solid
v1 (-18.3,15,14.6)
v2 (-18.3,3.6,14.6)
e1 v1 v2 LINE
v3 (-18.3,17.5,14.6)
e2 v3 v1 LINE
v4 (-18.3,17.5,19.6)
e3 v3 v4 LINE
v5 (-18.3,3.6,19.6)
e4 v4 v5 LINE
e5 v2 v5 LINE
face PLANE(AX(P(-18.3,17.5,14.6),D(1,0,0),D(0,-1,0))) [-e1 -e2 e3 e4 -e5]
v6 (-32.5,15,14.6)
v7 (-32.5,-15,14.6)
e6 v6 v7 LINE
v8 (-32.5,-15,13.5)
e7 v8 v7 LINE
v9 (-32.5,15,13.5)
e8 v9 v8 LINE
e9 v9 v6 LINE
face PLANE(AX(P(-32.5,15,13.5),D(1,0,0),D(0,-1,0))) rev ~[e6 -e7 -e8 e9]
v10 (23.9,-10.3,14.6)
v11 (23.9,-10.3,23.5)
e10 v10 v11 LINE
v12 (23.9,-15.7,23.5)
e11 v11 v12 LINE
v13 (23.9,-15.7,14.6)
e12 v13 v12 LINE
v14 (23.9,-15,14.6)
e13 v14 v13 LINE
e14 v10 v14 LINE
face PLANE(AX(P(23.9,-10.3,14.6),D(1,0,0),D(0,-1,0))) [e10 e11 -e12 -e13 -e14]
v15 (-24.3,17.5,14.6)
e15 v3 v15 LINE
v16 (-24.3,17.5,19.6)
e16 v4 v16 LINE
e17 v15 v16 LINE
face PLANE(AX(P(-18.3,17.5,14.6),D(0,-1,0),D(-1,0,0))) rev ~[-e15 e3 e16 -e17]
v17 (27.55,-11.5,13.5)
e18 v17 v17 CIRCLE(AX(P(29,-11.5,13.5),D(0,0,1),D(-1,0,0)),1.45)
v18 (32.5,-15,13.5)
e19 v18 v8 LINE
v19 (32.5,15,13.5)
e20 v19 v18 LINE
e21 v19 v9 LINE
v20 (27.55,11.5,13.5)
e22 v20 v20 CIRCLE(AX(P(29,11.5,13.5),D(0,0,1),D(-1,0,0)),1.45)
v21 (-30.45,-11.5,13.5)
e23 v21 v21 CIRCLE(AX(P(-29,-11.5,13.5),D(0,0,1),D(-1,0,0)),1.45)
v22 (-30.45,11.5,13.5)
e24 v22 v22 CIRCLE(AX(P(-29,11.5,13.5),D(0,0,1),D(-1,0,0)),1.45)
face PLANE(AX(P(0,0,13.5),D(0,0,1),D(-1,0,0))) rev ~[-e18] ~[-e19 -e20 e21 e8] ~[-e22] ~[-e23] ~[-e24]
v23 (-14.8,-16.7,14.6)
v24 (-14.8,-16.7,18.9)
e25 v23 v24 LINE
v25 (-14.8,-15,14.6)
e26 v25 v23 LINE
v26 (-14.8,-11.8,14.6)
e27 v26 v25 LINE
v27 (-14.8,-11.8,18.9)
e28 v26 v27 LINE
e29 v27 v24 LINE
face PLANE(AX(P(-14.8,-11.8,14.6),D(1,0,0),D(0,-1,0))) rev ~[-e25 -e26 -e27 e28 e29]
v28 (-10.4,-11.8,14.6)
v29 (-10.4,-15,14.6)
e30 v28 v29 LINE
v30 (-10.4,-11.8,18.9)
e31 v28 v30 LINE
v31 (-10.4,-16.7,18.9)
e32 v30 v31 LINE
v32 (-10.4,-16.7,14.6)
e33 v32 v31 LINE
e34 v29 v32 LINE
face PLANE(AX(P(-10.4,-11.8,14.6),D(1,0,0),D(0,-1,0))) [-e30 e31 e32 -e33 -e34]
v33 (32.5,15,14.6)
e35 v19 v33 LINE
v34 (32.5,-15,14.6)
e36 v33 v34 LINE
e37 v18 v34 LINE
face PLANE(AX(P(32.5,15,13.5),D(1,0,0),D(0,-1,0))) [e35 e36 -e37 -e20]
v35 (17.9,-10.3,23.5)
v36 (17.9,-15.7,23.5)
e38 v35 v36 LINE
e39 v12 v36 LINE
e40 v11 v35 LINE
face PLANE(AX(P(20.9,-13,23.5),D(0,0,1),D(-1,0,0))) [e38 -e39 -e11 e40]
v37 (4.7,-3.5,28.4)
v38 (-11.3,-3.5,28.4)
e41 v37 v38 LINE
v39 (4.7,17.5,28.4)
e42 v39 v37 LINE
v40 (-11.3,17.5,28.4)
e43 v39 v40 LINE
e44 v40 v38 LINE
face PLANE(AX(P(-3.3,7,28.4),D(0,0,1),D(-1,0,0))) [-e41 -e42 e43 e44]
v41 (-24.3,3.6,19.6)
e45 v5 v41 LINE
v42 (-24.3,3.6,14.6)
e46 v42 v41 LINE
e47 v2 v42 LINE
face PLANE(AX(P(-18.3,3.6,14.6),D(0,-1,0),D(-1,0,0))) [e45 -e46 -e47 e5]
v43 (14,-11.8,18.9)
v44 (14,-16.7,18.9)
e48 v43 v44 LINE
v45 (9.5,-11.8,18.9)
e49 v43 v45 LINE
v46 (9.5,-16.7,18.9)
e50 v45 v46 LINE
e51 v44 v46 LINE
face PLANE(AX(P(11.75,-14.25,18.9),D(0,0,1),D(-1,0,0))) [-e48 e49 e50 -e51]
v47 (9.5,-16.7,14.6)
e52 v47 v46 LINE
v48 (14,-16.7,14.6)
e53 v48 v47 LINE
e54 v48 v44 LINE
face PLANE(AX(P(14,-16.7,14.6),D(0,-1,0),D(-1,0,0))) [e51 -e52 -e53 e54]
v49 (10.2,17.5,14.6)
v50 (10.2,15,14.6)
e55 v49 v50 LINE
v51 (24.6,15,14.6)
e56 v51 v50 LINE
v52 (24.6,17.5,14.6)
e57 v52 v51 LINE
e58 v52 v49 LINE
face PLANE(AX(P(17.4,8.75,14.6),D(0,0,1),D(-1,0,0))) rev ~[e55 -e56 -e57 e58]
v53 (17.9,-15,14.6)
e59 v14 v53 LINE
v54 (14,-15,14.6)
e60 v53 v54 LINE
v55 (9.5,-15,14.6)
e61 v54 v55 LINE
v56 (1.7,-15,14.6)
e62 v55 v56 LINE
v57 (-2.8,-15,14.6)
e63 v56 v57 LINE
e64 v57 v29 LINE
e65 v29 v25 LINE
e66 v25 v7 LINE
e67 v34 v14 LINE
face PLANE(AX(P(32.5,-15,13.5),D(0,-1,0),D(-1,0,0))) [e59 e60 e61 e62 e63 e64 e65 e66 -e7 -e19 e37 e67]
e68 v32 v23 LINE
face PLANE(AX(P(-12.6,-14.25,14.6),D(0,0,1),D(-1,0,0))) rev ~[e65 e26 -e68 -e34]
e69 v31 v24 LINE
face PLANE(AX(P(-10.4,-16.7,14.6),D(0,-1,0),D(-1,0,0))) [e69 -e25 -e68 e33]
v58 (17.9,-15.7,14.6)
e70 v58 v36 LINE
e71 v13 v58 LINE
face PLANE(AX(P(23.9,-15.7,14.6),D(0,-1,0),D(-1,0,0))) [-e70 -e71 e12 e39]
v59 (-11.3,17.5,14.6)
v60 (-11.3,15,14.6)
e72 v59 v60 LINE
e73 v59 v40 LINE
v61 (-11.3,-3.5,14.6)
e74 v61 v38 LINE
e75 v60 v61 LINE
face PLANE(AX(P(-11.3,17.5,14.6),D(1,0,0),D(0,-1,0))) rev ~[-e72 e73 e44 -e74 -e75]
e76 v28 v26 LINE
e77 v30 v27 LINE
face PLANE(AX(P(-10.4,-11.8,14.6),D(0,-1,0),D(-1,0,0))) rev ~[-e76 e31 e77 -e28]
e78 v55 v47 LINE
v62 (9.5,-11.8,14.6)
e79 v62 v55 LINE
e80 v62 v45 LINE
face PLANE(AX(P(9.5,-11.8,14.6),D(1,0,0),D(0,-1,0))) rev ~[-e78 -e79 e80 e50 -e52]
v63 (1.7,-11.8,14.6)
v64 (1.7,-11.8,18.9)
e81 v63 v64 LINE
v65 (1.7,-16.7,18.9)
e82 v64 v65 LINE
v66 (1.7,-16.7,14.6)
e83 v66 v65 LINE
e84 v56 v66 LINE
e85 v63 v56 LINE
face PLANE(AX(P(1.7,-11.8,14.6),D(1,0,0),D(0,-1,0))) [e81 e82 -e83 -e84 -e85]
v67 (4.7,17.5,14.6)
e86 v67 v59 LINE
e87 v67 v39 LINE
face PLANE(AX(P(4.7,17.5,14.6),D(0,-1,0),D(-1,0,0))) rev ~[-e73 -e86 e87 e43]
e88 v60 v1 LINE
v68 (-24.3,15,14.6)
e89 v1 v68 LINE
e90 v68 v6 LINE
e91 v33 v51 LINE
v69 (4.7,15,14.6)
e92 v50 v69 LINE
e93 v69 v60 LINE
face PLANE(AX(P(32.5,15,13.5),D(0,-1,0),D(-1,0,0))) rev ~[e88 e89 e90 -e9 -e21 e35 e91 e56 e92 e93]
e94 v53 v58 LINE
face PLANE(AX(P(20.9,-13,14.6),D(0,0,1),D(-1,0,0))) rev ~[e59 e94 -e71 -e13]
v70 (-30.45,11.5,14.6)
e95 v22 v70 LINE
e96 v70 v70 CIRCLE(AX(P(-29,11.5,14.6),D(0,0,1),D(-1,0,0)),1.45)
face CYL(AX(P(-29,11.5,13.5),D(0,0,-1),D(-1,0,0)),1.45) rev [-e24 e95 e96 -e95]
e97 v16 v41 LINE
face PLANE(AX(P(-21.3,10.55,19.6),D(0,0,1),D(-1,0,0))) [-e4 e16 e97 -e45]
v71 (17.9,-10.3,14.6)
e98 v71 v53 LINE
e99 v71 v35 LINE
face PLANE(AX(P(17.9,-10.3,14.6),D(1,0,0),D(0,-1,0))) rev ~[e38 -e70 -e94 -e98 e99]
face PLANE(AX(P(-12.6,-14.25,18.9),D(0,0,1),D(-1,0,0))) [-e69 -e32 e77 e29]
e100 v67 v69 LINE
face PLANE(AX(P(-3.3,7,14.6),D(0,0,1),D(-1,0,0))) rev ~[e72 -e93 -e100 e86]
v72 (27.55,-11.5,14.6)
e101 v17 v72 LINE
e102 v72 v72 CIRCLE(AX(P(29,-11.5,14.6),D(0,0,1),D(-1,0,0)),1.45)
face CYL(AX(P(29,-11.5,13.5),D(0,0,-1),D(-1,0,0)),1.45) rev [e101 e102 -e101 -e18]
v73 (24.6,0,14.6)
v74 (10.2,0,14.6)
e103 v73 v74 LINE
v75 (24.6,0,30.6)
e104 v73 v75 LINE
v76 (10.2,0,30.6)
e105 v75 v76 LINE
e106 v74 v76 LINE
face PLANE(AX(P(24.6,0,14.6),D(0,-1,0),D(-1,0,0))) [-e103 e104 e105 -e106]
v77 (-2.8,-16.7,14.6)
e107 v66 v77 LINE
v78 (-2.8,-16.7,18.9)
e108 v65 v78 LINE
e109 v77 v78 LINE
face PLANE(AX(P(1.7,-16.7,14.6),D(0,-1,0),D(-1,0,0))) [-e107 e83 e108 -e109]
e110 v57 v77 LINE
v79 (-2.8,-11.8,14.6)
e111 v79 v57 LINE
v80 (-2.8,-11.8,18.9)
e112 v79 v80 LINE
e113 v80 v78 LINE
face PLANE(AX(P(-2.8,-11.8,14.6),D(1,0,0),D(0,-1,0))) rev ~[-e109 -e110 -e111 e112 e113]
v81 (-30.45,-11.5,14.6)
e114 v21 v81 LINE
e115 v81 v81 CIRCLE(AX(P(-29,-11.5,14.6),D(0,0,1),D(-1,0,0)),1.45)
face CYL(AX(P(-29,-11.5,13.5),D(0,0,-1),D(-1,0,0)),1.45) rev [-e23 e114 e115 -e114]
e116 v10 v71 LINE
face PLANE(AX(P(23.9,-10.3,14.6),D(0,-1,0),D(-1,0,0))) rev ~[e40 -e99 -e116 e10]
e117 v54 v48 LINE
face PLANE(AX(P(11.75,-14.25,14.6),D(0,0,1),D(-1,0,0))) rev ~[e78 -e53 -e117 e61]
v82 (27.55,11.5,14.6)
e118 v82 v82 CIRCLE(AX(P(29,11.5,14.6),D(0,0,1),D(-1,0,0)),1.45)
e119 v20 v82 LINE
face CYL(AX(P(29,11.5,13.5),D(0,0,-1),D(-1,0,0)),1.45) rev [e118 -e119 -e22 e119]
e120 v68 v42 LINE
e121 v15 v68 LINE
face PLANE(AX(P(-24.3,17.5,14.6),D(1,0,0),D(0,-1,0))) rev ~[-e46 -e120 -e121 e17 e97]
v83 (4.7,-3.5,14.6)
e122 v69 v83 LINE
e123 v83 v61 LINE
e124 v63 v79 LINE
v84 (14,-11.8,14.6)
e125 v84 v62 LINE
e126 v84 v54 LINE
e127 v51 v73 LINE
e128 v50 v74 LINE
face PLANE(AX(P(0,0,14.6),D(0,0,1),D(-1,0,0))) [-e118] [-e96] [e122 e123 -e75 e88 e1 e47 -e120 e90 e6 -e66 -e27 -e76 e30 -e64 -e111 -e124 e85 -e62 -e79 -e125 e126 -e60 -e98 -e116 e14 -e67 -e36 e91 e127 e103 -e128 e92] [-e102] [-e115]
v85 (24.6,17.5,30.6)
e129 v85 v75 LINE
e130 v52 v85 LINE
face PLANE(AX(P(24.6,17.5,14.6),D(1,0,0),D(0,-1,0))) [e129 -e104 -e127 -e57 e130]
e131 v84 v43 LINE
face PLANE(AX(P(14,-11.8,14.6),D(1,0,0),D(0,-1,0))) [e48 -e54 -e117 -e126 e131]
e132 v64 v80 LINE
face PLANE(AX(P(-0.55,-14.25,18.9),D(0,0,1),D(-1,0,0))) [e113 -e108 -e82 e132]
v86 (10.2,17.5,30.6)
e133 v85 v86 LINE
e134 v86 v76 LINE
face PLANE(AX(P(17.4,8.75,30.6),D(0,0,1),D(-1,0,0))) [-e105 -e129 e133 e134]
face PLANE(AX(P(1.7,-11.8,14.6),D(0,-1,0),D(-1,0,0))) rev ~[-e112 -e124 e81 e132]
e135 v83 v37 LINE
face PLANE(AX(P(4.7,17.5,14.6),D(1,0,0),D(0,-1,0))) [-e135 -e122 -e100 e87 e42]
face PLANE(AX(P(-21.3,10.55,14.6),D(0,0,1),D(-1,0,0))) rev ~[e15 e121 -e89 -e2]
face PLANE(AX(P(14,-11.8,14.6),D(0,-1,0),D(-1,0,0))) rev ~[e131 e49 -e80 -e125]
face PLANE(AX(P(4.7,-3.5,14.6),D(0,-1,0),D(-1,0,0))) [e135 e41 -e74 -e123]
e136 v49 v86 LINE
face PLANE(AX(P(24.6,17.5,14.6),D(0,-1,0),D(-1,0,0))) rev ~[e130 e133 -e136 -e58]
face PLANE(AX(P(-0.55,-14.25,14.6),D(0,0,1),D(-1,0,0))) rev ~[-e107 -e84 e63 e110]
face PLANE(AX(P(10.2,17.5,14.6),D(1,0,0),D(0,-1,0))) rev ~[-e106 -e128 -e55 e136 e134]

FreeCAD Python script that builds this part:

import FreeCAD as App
import Part
import Sketcher
from FreeCAD import Vector

doc = App.newDocument("Part")
body = doc.addObject("PartDesign::Body", "Body")

sketch1 = body.newObject("Sketcher::SketchObject", "Sketch")
sketch1.AttachmentSupport = (doc.getObject("XY_Plane"), [""])
sketch1.MapMode = "FlatFace"
sketch1.addGeometry(Part.LineSegment(Vector(-32.5, 15, 0), Vector(-32.5, -15, 0)), False)
sketch1.addGeometry(Part.LineSegment(Vector(-32.5, -15, 0), Vector(32.5, -15, 0)), False)
sketch1.addGeometry(Part.LineSegment(Vector(32.5, -15, 0), Vector(32.5, 15, 0)), False)
sketch1.addGeometry(Part.LineSegment(Vector(32.5, 15, 0), Vector(-32.5, 15, 0)), False)
sketch1.addGeometry(Part.Circle(Vector(-29, -11.5, 0), Vector(0, 0, 1), 1.4), False)
sketch1.addGeometry(Part.Circle(Vector(29, -11.5, 0), Vector(0, 0, 1), 1.4), False)
sketch1.addGeometry(Part.Circle(Vector(-29, 11.5, 0), Vector(0, 0, 1), 1.4), False)
sketch1.addGeometry(Part.Circle(Vector(29, 11.5, 0), Vector(0, 0, 1), 1.4), False)
sketch1.addConstraint(Sketcher.Constraint("Coincident", 0, 2, 1, 1))
sketch1.addConstraint(Sketcher.Constraint("Coincident", 1, 2, 2, 1))
sketch1.addConstraint(Sketcher.Constraint("Coincident", 2, 2, 3, 1))
sketch1.addConstraint(Sketcher.Constraint("Coincident", 3, 2, 0, 1))
sketch1.addConstraint(Sketcher.Constraint("Vertical", 0))
sketch1.addConstraint(Sketcher.Constraint("Horizontal", 1))
sketch1.addConstraint(Sketcher.Constraint("Vertical", 2))
sketch1.addConstraint(Sketcher.Constraint("Horizontal", 3))
sketch1.addConstraint(Sketcher.Constraint("Equal", 4, 5))
sketch1.addConstraint(Sketcher.Constraint("Equal", 5, 6))
sketch1.addConstraint(Sketcher.Constraint("Equal", 6, 7))
sketch1.addConstraint(Sketcher.Constraint("Symmetric", 5, 3, 6, 3, -1, 1))
sketch1.addConstraint(Sketcher.Constraint("Symmetric", 4, 3, 7, 3, -1, 1))
sketch1.addConstraint(Sketcher.Constraint("Symmetric", 0, 2, 2, 2, -1, 1))
sketch1.addConstraint(Sketcher.Constraint("Symmetric", 4, 3, 5, 3, -2))
sketch1.addConstraint(Sketcher.Constraint("Diameter", 4, 2.9))
sketch1.addConstraint(Sketcher.Constraint("DistanceX", 1, 1, 1, 2, 65.0))
sketch1.addConstraint(Sketcher.Constraint("DistanceY", 0, 2, 0, 1, 30.0))
sketch1.addConstraint(Sketcher.Constraint("DistanceX", 4, 3, -1, 1, 29.0))
sketch1.addConstraint(Sketcher.Constraint("DistanceY", 4, 3, 6, 3, 23.0))
pad1 = body.newObject("PartDesign::Pad", "Pad")
pad1.Profile = sketch1
pad1.Length = 1.1

sketch2 = body.newObject("Sketcher::SketchObject", "Sketch001")
sketch2.AttachmentSupport = (doc.getObject("XY_Plane"), [""])
sketch2.MapMode = "FlatFace"
sketch2.AttachmentOffset = App.Placement(Vector(0, 0, 1.1), App.Rotation())
sketch2.addGeometry(Part.LineSegment(Vector(-25, 0, 0), Vector(-25, -18, 0)), False)
sketch2.addGeometry(Part.LineSegment(Vector(-25, -18, 0), Vector(-10, -18, 0)), False)
sketch2.addGeometry(Part.LineSegment(Vector(-10, -18, 0), Vector(-10, 0, 0)), False)
sketch2.addGeometry(Part.LineSegment(Vector(-10, 0, 0), Vector(-25, 0, 0)), False)
sketch2.addConstraint(Sketcher.Constraint("Coincident", 0, 2, 1, 1))
sketch2.addConstraint(Sketcher.Constraint("Coincident", 1, 2, 2, 1))
sketch2.addConstraint(Sketcher.Constraint("Coincident", 2, 2, 3, 1))
sketch2.addConstraint(Sketcher.Constraint("Coincident", 3, 2, 0, 1))
sketch2.addConstraint(Sketcher.Constraint("Vertical", 0))
sketch2.addConstraint(Sketcher.Constraint("Horizontal", 1))
sketch2.addConstraint(Sketcher.Constraint("Vertical", 2))
sketch2.addConstraint(Sketcher.Constraint("Horizontal", 3))
sketch2.addConstraint(Sketcher.Constraint("PointOnObject", 2, 2, -1))
sketch2.addConstraint(Sketcher.Constraint("DistanceX", 1, 1, 1, 2, 14.4))
sketch2.addConstraint(Sketcher.Constraint("DistanceY", 0, 2, 0, 1, 17.5))
sketch2.addConstraint(Sketcher.Constraint("DistanceX", 0, 2, -1, 1, 24.6))
pad2 = body.newObject("PartDesign::Pad", "Pad001")
pad2.Profile = sketch2
pad2.Length = 16

sketch3 = body.newObject("Sketcher::SketchObject", "Sketch002")
sketch3.AttachmentSupport = (doc.getObject("XY_Plane"), [""])
sketch3.MapMode = "FlatFace"
sketch3.AttachmentOffset = App.Placement(Vector(0, 0, 1.1), App.Rotation())
sketch3.addGeometry(Part.LineSegment(Vector(-5, 4, 0), Vector(-5, -18, 0)), False)
sketch3.addGeometry(Part.LineSegment(Vector(-5, -18, 0), Vector(11, -18, 0)), False)
sketch3.addGeometry(Part.LineSegment(Vector(11, -18, 0), Vector(11, 4, 0)), False)
sketch3.addGeometry(Part.LineSegment(Vector(11, 4, 0), Vector(-5, 4, 0)), False)
sketch3.addConstraint(Sketcher.Constraint("Coincident", 0, 2, 1, 1))
sketch3.addConstraint(Sketcher.Constraint("Coincident", 1, 2, 2, 1))
sketch3.addConstraint(Sketcher.Constraint("Coincident", 2, 2, 3, 1))
sketch3.addConstraint(Sketcher.Constraint("Coincident", 3, 2, 0, 1))
sketch3.addConstraint(Sketcher.Constraint("Vertical", 0))
sketch3.addConstraint(Sketcher.Constraint("Horizontal", 1))
sketch3.addConstraint(Sketcher.Constraint("Vertical", 2))
sketch3.addConstraint(Sketcher.Constraint("Horizontal", 3))
sketch3.addConstraint(Sketcher.Constraint("DistanceX", 1, 1, 1, 2, 16.0))
sketch3.addConstraint(Sketcher.Constraint("DistanceY", 0, 2, 0, 1, 21.0))
sketch3.addConstraint(Sketcher.Constraint("DistanceX", 0, 2, -1, 1, 4.7))
sketch3.addConstraint(Sketcher.Constraint("DistanceY", 0, 2, -1, 1, 17.5))
pad3 = body.newObject("PartDesign::Pad", "Pad002")
pad3.Profile = sketch3
pad3.Length = 13.8

sketch4 = body.newObject("Sketcher::SketchObject", "Sketch003")
sketch4.AttachmentSupport = (doc.getObject("XY_Plane"), [""])
sketch4.MapMode = "FlatFace"
sketch4.AttachmentOffset = App.Placement(Vector(0, 0, 1.1), App.Rotation())
sketch4.addGeometry(Part.LineSegment(Vector(18, -4, 0), Vector(18, -18, 0)), False)
sketch4.addGeometry(Part.LineSegment(Vector(18, -18, 0), Vector(24, -18, 0)), False)
sketch4.addGeometry(Part.LineSegment(Vector(24, -18, 0), Vector(24, -4, 0)), False)
sketch4.addGeometry(Part.LineSegment(Vector(24, -4, 0), Vector(18, -4, 0)), False)
sketch4.addConstraint(Sketcher.Constraint("Coincident", 0, 2, 1, 1))
sketch4.addConstraint(Sketcher.Constraint("Coincident", 1, 2, 2, 1))
sketch4.addConstraint(Sketcher.Constraint("Coincident", 2, 2, 3, 1))
sketch4.addConstraint(Sketcher.Constraint("Coincident", 3, 2, 0, 1))
sketch4.addConstraint(Sketcher.Constraint("Vertical", 0))
sketch4.addConstraint(Sketcher.Constraint("Horizontal", 1))
sketch4.addConstraint(Sketcher.Constraint("Vertical", 2))
sketch4.addConstraint(Sketcher.Constraint("Horizontal", 3))
sketch4.addConstraint(Sketcher.Constraint("DistanceX", 1, 1, 1, 2, 6.0))
sketch4.addConstraint(Sketcher.Constraint("DistanceY", 0, 2, 0, 1, 13.9))
sketch4.addConstraint(Sketcher.Constraint("DistanceX", -1, 1, 0, 2, 18.3))
sketch4.addConstraint(Sketcher.Constraint("DistanceY", 0, 2, -1, 1, 17.5))
pad4 = body.newObject("PartDesign::Pad", "Pad003")
pad4.Profile = sketch4
pad4.Length = 5

sketch5 = body.newObject("Sketcher::SketchObject", "Sketch004")
sketch5.AttachmentSupport = (doc.getObject("XY_Plane"), [""])
sketch5.MapMode = "FlatFace"
sketch5.AttachmentOffset = App.Placement(Vector(0, 0, 1.1), App.Rotation())
sketch5.addGeometry(Part.LineSegment(Vector(10.4, 16.7, 0), Vector(10.4, 11.8, 0)), False)
sketch5.addGeometry(Part.LineSegment(Vector(10.4, 11.8, 0), Vector(14.8, 11.8, 0)), False)
sketch5.addGeometry(Part.LineSegment(Vector(14.8, 11.8, 0), Vector(14.8, 16.7, 0)), False)
sketch5.addGeometry(Part.LineSegment(Vector(14.8, 16.7, 0), Vector(10.4, 16.7, 0)), False)
sketch5.addGeometry(Part.LineSegment(Vector(-1.7, 16.7, 0), Vector(-1.7, 11.8, 0)), False)
sketch5.addGeometry(Part.LineSegment(Vector(-1.7, 11.8, 0), Vector(2.8, 11.8, 0)), False)
sketch5.addGeometry(Part.LineSegment(Vector(2.8, 11.8, 0), Vector(2.8, 16.7, 0)), False)
sketch5.addGeometry(Part.LineSegment(Vector(2.8, 16.7, 0), Vector(-1.7, 16.7, 0)), False)
sketch5.addGeometry(Part.LineSegment(Vector(-14, 16.7, 0), Vector(-14, 11.8, 0)), False)
sketch5.addGeometry(Part.LineSegment(Vector(-14, 11.8, 0), Vector(-9.5, 11.8, 0)), False)
sketch5.addGeometry(Part.LineSegment(Vector(-9.5, 11.8, 0), Vector(-9.5, 16.7, 0)), False)
sketch5.addGeometry(Part.LineSegment(Vector(-9.5, 16.7, 0), Vector(-14, 16.7, 0)), False)
sketch5.addConstraint(Sketcher.Constraint("Coincident", 0, 2, 1, 1))
sketch5.addConstraint(Sketcher.Constraint("Coincident", 1, 2, 2, 1))
sketch5.addConstraint(Sketcher.Constraint("Coincident", 2, 2, 3, 1))
sketch5.addConstraint(Sketcher.Constraint("Coincident", 3, 2, 0, 1))
sketch5.addConstraint(Sketcher.Constraint("Coincident", 4, 2, 5, 1))
sketch5.addConstraint(Sketcher.Constraint("Coincident", 5, 2, 6, 1))
sketch5.addConstraint(Sketcher.Constraint("Coincident", 6, 2, 7, 1))
sketch5.addConstraint(Sketcher.Constraint("Coincident", 7, 2, 4, 1))
sketch5.addConstraint(Sketcher.Constraint("Coincident", 8, 2, 9, 1))
sketch5.addConstraint(Sketcher.Constraint("Coincident", 9, 2, 10, 1))
sketch5.addConstraint(Sketcher.Constraint("Coincident", 10, 2, 11, 1))
sketch5.addConstraint(Sketcher.Constraint("Coincident", 11, 2, 8, 1))
sketch5.addConstraint(Sketcher.Constraint("Vertical", 0))
sketch5.addConstraint(Sketcher.Constraint("Horizontal", 1))
sketch5.addConstraint(Sketcher.Constraint("Vertical", 2))
sketch5.addConstraint(Sketcher.Constraint("Horizontal", 3))
sketch5.addConstraint(Sketcher.Constraint("Vertical", 4))
sketch5.addConstraint(Sketcher.Constraint("Horizontal", 5))
sketch5.addConstraint(Sketcher.Constraint("Vertical", 6))
sketch5.addConstraint(Sketcher.Constraint("Horizontal", 7))
sketch5.addConstraint(Sketcher.Constraint("Vertical", 8))
sketch5.addConstraint(Sketcher.Constraint("Horizontal", 9))
sketch5.addConstraint(Sketcher.Constraint("Vertical", 10))
sketch5.addConstraint(Sketcher.Constraint("Horizontal", 11))
sketch5.addConstraint(Sketcher.Constraint("Horizontal", 1, 2, 4, 2))
sketch5.addConstraint(Sketcher.Constraint("Horizontal", 3, 2, 6, 2))
sketch5.addConstraint(Sketcher.Constraint("Horizontal", 5, 2, 8, 2))
sketch5.addConstraint(Sketcher.Constraint("Horizontal", 7, 2, 10, 2))
sketch5.addConstraint(Sketcher.Constraint("Equal", 7, 9))
sketch5.addConstraint(Sketcher.Constraint("DistanceX", 1, 1, 1, 2, 4.4))
sketch5.addConstraint(Sketcher.Constraint("DistanceX", 5, 1, 5, 2, 4.5))
sketch5.addConstraint(Sketcher.Constraint("DistanceY", 0, 2, 0, 1, 4.9))
sketch5.addConstraint(Sketcher.Constraint("DistanceX", 8, 2, -1, 1, 14.0))
sketch5.addConstraint(Sketcher.Constraint("DistanceX", 5, 2, 1, 2, 12.0))
sketch5.addConstraint(Sketcher.Constraint("DistanceX", -1, 1, 0, 2, 10.4))
sketch5.addConstraint(Sketcher.Constraint("DistanceY", -1, 1, 0, 2, 11.8))
pad5 = body.newObject("PartDesign::Pad", "Pad004")
pad5.Profile = sketch5
pad5.Length = 4.3

sketch6 = body.newObject("Sketcher::SketchObject", "Sketch005")
sketch6.AttachmentSupport = (doc.getObject("XY_Plane"), [""])
sketch6.MapMode = "FlatFace"
sketch6.AttachmentOffset = App.Placement(Vector(0, 0, 1.1), App.Rotation())
sketch6.addGeometry(Part.LineSegment(Vector(-24, 16, 0), Vector(-24, 10, 0)), False)
sketch6.addGeometry(Part.LineSegment(Vector(-24, 10, 0), Vector(-18, 10, 0)), False)
sketch6.addGeometry(Part.LineSegment(Vector(-18, 10, 0), Vector(-18, 16, 0)), False)
sketch6.addGeometry(Part.LineSegment(Vector(-18, 16, 0), Vector(-24, 16, 0)), False)
sketch6.addConstraint(Sketcher.Constraint("Coincident", 0, 2, 1, 1))
sketch6.addConstraint(Sketcher.Constraint("Coincident", 1, 2, 2, 1))
sketch6.addConstraint(Sketcher.Constraint("Coincident", 2, 2, 3, 1))
sketch6.addConstraint(Sketcher.Constraint("Coincident", 3, 2, 0, 1))
sketch6.addConstraint(Sketcher.Constraint("Vertical", 0))
sketch6.addConstraint(Sketcher.Constraint("Horizontal", 1))
sketch6.addConstraint(Sketcher.Constraint("Vertical", 2))
sketch6.addConstraint(Sketcher.Constraint("Horizontal", 3))
sketch6.addConstraint(Sketcher.Constraint("DistanceX", 1, 1, 1, 2, 6.0))
sketch6.addConstraint(Sketcher.Constraint("DistanceY", 0, 2, 0, 1, 5.4))
sketch6.addConstraint(Sketcher.Constraint("DistanceX", 0, 2, -1, 1, 23.9))
sketch6.addConstraint(Sketcher.Constraint("DistanceY", -1, 1, 0, 2, 10.3))
pad6 = body.newObject("PartDesign::Pad", "Pad005")
pad6.Profile = sketch6
pad6.Length = 8.9
body2 = doc.addObject("PartDesign::Body", "Body001")
doc.recompute()

body.Placement = App.Placement(Vector(0, 0, 13.5), App.Rotation(Vector(0, 0, 1), 180))
boolean = body2.newObject("PartDesign::Boolean", "Boolean")
boolean.Type = "Fuse"
boolean.addObjects([body])

doc.recompute()
